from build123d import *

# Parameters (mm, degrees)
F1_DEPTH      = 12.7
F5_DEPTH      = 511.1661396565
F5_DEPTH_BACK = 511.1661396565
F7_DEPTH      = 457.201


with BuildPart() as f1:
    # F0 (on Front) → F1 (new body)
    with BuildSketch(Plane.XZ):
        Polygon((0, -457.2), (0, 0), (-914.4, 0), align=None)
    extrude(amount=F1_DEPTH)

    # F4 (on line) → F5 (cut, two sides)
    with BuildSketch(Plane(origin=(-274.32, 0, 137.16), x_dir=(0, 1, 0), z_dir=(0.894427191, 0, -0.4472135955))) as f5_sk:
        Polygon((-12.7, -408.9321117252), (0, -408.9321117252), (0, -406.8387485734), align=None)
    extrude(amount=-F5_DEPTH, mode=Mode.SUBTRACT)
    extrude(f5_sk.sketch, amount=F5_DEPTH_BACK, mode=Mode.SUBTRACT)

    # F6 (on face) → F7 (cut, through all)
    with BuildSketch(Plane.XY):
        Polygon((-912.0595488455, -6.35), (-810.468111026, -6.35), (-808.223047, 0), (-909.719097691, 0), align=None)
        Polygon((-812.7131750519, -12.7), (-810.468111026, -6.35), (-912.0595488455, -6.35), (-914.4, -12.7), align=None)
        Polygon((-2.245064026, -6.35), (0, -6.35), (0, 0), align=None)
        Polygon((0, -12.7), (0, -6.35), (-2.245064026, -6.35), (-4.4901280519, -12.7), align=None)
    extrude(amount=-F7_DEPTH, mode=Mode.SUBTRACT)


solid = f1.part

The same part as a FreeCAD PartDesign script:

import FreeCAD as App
import Part
import Sketcher
from FreeCAD import Vector
Q = App.Units.Quantity

doc = App.newDocument("Part")
params = doc.addObject("Spreadsheet::Sheet", "Params")
for row, (alias, value) in enumerate([
    ("sketch1_width", "36 in"),
    ("sketch1_height", "18 in"),
    ("pad1_length", "0.5 in"),
    ("sketch2_width", "0.5 in"),
    ("sketch3_height", "0.5 in"),
], start=1):
    params.set(f"A{row}", alias)
    params.set(f"B{row}", "=" + value)
    params.setAlias(f"B{row}", alias)

body = doc.addObject("PartDesign::Body", "Body")

# Sketch on XZ plane
sketch1 = doc.addObject("Sketcher::SketchObject", "Sketch")
body.addObject(sketch1)
sketch1.AttachmentSupport = (doc.XZ_Plane, [""])
sketch1.MapMode = "FlatFace"
sketch1.addGeometry([
    Part.LineSegment(Vector(0, -457, 0), Vector(0, 0, 0)),
    Part.LineSegment(Vector(0, 0, 0), Vector(-914, 0, 0)),
    Part.LineSegment(Vector(-914, 0, 0), Vector(0, -457, 0)),
], False)
sketch1.addConstraint([
    Sketcher.Constraint("Coincident", 0, 2, 1, 1),
    Sketcher.Constraint("Coincident", 1, 2, 2, 1),
    Sketcher.Constraint("Coincident", 2, 2, 0, 1),
    Sketcher.Constraint("Vertical", 0),
    Sketcher.Constraint("Horizontal", 1),
    Sketcher.Constraint("Coincident", 0, 2, -1, 1),
    Sketcher.Constraint("DistanceX", 1, 2, 1, 1, Q("36 in")),
    Sketcher.Constraint("DistanceY", 0, 1, 0, 2, Q("18 in")),
])
sketch1.setExpression("Constraints[6]", "Params.sketch1_width")
sketch1.setExpression("Constraints[7]", "Params.sketch1_height")
pad1 = doc.addObject("PartDesign::Pad", "Pad")
body.addObject(pad1)
pad1.Profile = sketch1
pad1.setExpression("Length", "Params.pad1_length")

# Sketch on an angled plane
sketch2 = doc.addObject("Sketcher::SketchObject", "Sketch001")
body.addObject(sketch2)
sketch2.Placement = App.Placement(Vector(-274.32, 0, 137.16), App.Rotation(Vector(0, 1, 0), Vector(0.447213595, 0, 0.894427191), Vector(0.894427191, 0, -0.447213595), "ZXY"))
sketch2.addGeometry([
    Part.LineSegment(Vector(-12.7, -408.9, 0), Vector(0, -408.9, 0)),
    Part.LineSegment(Vector(0, -408.9, 0), Vector(0, -406.8, 0)),
    Part.LineSegment(Vector(0, -406.8, 0), Vector(-12.7, -408.9, 0)),
], False)
sketch2.addConstraint([
    Sketcher.Constraint("Coincident", 0, 2, 1, 1),
    Sketcher.Constraint("Coincident", 1, 2, 2, 1),
    Sketcher.Constraint("Coincident", 2, 2, 0, 1),
    Sketcher.Constraint("Horizontal", 0),
    Sketcher.Constraint("Vertical", 1),
    Sketcher.Constraint("PointOnObject", 0, 2, -2),
    Sketcher.Constraint("DistanceX", 0, 1, 0, 2, Q("0.5 in")),
    Sketcher.Constraint("Angle", 2, Q("-170.64 deg")),
    Sketcher.Constraint("DistanceY", 0, 2, -1, 1, 408.932112),
])
sketch2.setExpression("Constraints[6]", "Params.sketch2_width")
pocket1 = doc.addObject("PartDesign::Pocket", "Pocket")
body.addObject(pocket1)
pocket1.Profile = sketch2
pocket1.Type = "ThroughAll"
pocket1.Midplane = True

# Sketch on XY plane
sketch3 = doc.addObject("Sketcher::SketchObject", "Sketch002")
body.addObject(sketch3)
sketch3.AttachmentSupport = (doc.XY_Plane, [""])
sketch3.MapMode = "FlatFace"
sketch3.addGeometry([
    Part.LineSegment(Vector(-810.5, -6.3, 0), Vector(-808.2, 0, 0)),  # 0
    Part.LineSegment(Vector(-808.2, 0, 0), Vector(-909.7, 0, 0)),  # 1
    Part.LineSegment(Vector(-909.7, 0, 0), Vector(-914.4, -12.7, 0)),  # 2
    Part.LineSegment(Vector(-914.4, -12.7, 0), Vector(-812.7, -12.7, 0)),  # 3
    Part.LineSegment(Vector(-812.7, -12.7, 0), Vector(-810.5, -6.3, 0)),  # 4
    Part.LineSegment(Vector(0, 0, 0), Vector(-2.2, -6.3, 0)),  # 5
    Part.LineSegment(Vector(-2.2, -6.3, 0), Vector(-4.5, -12.7, 0)),  # 6
    Part.LineSegment(Vector(-4.5, -12.7, 0), Vector(0, -12.7, 0)),  # 7
    Part.LineSegment(Vector(0, -12.7, 0), Vector(0, 0, 0)),  # 8
], False)
sketch3.addConstraint([
    Sketcher.Constraint("Coincident", 0, 2, 1, 1),
    Sketcher.Constraint("Coincident", 1, 2, 2, 1),
    Sketcher.Constraint("Coincident", 2, 2, 3, 1),
    Sketcher.Constraint("Coincident", 3, 2, 4, 1),
    Sketcher.Constraint("Coincident", 4, 2, 0, 1),
    Sketcher.Constraint("Coincident", 5, 2, 6, 1),
    Sketcher.Constraint("Coincident", 6, 2, 7, 1),
    Sketcher.Constraint("Coincident", 7, 2, 8, 1),
    Sketcher.Constraint("Coincident", 8, 2, 5, 1),
    Sketcher.Constraint("Horizontal", 1),
    Sketcher.Constraint("Horizontal", 3),
    Sketcher.Constraint("Horizontal", 7),
    Sketcher.Constraint("Vertical", 8),
    Sketcher.Constraint("Coincident", 8, 2, -1, 1),
    Sketcher.Constraint("PointOnObject", 0, 2, -1),
    Sketcher.Constraint("Parallel", 0, 4),
    Sketcher.Constraint("Parallel", 4, 5),
    Sketcher.Constraint("Parallel", 5, 6),
    Sketcher.Constraint("Horizontal", 4, 2, 5, 2),
    Sketcher.Constraint("Horizontal", 3, 2, 6, 2),
    Sketcher.Constraint("Equal", 0, 4),
    Sketcher.Constraint("DistanceY", 8, 1, 8, 2, Q("0.5 in")),
    Sketcher.Constraint("DistanceX", 2, 2, -1, 1, Q("36 in")),
    Sketcher.Constraint("DistanceX", 1, 2, 1, 1, 101.496051),
    Sketcher.Constraint("DistanceX", 7, 1, 7, 2, 4.490128),
    Sketcher.Constraint("Distance", 2, 13.535171),
])
sketch3.setExpression("Constraints[21]", "Params.sketch3_height")
pocket2 = doc.addObject("PartDesign::Pocket", "Pocket001")
body.addObject(pocket2)
pocket2.Profile = sketch3
pocket2.Type = "ThroughAll"

doc.recompute()
